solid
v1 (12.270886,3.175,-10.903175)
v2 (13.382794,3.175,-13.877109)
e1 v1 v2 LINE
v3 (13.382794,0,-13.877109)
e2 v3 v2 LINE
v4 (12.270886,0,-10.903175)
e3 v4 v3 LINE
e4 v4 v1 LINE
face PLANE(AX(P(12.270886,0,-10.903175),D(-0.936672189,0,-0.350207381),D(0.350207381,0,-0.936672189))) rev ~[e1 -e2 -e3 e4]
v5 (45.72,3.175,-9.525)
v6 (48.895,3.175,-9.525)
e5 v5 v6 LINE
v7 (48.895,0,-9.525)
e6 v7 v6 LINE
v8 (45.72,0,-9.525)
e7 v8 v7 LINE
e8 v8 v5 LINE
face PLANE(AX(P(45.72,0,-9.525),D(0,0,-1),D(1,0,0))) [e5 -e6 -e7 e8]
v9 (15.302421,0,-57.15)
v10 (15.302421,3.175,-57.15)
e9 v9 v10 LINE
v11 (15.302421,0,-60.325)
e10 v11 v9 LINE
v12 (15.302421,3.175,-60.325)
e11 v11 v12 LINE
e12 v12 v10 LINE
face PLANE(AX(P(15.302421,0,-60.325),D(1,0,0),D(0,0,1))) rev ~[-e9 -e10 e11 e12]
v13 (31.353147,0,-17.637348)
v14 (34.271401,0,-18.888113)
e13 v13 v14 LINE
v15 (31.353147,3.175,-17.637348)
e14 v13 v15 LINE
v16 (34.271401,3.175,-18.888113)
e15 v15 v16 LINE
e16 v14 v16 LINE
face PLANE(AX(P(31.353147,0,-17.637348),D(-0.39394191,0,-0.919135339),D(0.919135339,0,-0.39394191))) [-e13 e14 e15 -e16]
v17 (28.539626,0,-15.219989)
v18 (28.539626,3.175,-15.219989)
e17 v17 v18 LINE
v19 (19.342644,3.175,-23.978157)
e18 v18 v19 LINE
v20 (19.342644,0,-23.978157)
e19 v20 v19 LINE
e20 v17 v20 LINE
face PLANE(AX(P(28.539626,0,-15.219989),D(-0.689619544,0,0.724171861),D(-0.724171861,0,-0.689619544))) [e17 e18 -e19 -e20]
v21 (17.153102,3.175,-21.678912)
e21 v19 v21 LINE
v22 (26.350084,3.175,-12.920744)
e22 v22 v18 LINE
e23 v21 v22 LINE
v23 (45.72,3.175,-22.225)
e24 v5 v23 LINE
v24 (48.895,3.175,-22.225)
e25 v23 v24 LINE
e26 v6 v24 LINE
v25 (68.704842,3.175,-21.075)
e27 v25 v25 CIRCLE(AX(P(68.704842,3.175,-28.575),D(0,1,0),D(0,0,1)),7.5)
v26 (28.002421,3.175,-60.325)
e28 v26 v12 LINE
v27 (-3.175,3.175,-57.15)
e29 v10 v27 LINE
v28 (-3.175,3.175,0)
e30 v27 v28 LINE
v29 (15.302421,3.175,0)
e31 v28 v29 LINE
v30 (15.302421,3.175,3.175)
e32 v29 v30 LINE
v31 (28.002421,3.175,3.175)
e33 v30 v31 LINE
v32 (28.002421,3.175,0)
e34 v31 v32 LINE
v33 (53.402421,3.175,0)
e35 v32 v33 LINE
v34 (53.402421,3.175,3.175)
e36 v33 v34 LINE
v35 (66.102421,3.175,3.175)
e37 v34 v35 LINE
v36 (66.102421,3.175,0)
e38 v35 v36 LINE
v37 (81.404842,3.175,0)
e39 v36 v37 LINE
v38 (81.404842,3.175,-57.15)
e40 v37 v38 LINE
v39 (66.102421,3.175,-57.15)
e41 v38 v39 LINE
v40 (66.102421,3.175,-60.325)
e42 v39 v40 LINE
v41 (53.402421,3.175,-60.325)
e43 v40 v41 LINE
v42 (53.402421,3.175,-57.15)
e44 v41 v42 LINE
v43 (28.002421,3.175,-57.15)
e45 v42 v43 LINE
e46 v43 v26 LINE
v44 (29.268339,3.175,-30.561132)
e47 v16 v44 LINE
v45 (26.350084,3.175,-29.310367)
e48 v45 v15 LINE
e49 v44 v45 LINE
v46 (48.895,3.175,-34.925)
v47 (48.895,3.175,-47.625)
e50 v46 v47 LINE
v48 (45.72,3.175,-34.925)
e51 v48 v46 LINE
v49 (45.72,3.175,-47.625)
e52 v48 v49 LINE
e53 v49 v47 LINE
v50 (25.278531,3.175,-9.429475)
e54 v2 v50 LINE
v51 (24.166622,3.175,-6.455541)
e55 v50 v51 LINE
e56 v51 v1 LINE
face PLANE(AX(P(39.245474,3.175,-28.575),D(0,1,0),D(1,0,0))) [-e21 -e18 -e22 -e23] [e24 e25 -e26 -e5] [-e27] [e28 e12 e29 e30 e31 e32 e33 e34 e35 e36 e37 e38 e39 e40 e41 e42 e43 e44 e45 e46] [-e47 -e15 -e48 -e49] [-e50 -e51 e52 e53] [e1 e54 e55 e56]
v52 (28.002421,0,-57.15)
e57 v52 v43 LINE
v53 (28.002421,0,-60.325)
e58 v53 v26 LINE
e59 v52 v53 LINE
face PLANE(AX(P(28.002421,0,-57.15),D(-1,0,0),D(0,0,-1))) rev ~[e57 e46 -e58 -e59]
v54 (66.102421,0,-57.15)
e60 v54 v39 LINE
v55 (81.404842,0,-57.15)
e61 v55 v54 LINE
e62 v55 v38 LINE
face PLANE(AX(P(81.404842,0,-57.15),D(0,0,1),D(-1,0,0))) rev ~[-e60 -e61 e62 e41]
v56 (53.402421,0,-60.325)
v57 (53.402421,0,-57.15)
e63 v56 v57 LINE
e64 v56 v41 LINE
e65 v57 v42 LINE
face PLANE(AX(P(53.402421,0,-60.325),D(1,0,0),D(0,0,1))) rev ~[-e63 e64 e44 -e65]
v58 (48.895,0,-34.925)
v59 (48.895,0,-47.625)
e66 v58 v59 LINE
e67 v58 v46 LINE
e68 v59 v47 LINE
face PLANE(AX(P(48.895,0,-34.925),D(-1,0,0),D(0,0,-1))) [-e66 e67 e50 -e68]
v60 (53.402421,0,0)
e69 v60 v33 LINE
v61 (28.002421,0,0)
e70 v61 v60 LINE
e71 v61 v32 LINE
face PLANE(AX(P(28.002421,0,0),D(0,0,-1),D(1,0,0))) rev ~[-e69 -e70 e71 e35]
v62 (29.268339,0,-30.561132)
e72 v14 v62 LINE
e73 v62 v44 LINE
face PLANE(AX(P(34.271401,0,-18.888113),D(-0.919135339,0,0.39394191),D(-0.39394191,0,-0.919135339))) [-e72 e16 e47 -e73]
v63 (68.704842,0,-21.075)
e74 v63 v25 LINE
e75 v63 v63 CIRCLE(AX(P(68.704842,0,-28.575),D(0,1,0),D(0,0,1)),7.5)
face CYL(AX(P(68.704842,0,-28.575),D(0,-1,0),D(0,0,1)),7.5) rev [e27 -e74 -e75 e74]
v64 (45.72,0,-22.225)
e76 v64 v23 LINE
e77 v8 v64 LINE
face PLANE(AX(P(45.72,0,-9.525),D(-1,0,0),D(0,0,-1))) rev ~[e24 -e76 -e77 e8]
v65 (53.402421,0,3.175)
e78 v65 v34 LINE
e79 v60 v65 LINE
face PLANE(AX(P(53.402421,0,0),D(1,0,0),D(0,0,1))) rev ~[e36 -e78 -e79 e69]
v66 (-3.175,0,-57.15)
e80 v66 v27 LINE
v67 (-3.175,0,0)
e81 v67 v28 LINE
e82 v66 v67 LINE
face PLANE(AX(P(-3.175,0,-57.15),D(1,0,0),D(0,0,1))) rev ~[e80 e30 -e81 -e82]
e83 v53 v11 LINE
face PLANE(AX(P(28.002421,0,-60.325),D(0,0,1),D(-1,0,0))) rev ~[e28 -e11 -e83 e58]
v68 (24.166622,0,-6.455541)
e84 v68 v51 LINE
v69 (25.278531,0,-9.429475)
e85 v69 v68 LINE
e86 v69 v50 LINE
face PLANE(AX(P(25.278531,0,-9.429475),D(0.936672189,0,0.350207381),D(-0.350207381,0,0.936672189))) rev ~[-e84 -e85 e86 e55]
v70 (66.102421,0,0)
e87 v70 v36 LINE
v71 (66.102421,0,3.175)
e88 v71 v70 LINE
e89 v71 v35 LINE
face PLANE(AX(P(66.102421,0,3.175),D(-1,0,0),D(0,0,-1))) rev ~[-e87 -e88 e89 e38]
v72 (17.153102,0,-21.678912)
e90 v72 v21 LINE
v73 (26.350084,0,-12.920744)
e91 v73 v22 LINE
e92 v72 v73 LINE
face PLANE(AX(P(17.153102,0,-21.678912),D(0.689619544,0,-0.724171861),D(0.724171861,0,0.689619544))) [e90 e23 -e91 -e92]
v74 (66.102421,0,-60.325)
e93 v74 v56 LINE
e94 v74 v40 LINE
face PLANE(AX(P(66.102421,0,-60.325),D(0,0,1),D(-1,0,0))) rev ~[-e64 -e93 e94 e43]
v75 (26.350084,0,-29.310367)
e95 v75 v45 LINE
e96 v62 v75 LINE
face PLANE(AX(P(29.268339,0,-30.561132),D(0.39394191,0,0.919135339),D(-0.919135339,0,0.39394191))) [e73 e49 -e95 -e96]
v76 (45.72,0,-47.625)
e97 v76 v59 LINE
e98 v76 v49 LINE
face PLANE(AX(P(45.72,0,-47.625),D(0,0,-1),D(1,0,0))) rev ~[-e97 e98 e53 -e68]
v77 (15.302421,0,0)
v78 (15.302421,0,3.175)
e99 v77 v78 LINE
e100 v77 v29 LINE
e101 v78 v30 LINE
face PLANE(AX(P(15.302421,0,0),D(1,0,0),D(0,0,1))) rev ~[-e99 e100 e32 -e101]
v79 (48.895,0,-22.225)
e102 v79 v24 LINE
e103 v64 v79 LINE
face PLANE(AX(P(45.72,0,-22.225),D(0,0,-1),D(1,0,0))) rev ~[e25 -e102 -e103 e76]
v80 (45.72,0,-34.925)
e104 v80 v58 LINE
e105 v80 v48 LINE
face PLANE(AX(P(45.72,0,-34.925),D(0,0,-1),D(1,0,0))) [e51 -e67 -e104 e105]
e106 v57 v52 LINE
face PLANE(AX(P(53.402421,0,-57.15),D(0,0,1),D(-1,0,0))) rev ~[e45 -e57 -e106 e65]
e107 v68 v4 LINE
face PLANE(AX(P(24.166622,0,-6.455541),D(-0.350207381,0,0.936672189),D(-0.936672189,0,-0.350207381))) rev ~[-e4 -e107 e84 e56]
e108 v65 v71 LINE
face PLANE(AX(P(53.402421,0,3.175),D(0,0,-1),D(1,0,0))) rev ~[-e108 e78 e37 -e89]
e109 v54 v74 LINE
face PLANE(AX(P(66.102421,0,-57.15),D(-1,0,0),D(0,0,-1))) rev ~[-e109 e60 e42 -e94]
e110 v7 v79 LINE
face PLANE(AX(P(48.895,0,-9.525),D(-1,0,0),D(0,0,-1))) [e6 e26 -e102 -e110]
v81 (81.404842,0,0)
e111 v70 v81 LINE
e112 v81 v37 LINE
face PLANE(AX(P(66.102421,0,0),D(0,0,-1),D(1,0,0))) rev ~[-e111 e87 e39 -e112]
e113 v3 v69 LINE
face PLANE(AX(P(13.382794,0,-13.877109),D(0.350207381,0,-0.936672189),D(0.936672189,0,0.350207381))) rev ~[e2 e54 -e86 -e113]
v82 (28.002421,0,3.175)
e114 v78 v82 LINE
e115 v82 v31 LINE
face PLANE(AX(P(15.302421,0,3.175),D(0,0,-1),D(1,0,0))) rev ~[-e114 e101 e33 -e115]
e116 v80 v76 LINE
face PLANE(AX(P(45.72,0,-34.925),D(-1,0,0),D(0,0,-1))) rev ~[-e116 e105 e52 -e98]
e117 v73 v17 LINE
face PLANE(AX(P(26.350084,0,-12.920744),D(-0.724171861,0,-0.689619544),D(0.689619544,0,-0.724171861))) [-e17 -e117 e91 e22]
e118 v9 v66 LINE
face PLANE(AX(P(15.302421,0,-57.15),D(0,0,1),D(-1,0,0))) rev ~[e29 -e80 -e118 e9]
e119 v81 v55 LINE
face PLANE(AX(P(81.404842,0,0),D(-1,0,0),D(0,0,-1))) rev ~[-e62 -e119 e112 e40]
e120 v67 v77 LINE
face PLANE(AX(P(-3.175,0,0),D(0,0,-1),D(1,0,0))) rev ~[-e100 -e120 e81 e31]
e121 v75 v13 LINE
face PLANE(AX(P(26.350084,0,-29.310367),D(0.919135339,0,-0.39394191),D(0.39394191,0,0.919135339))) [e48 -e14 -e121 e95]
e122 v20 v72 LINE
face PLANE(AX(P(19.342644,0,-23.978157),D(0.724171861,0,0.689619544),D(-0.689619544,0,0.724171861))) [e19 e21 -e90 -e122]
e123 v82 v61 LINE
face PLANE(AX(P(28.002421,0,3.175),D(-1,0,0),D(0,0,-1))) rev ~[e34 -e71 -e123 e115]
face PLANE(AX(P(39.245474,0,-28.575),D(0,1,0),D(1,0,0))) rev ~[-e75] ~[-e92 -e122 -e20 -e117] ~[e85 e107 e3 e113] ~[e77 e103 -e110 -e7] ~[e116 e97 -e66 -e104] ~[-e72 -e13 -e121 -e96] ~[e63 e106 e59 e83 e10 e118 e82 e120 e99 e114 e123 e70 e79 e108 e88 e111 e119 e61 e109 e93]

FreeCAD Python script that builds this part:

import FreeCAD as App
import Part
import Sketcher
Q = App.Units.Quantity

doc = App.newDocument("Part")
body = doc.addObject("PartDesign::Body", "Body")

# Sketch on XZ plane
sketch1 = doc.addObject("Sketcher::SketchObject", "Sketch")
body.addObject(sketch1)
sketch1.AttachmentSupport = (doc.XZ_Plane, [""])
sketch1.MapMode = "FlatFace"
sketch1.addGeometry(Part.LineSegment(App.Vector(15.3, 0, 0), App.Vector(15.3, 3.2, 0)), False)
sketch1.addGeometry(Part.LineSegment(App.Vector(15.3, 3.2, 0), App.Vector(28, 3.2, 0)), False)
sketch1.addGeometry(Part.LineSegment(App.Vector(28, 3.2, 0), App.Vector(28, 0, 0)), False)
sketch1.addGeometry(Part.LineSegment(App.Vector(28, 0, 0), App.Vector(53.4, 0, 0)), False)
sketch1.addGeometry(Part.LineSegment(App.Vector(53.4, 0, 0), App.Vector(53.4, 3.2, 0)), False)
sketch1.addGeometry(Part.LineSegment(App.Vector(53.4, 3.2, 0), App.Vector(66.1, 3.2, 0)), False)
sketch1.addGeometry(Part.LineSegment(App.Vector(66.1, 3.2, 0), App.Vector(66.1, 0, 0)), False)
sketch1.addGeometry(Part.LineSegment(App.Vector(66.1, 0, 0), App.Vector(81.4, 0, 0)), False)
sketch1.addGeometry(Part.LineSegment(App.Vector(81.4, 0, 0), App.Vector(81.4, -57.1, 0)), False)
sketch1.addGeometry(Part.LineSegment(App.Vector(81.4, -57.1, 0), App.Vector(66.1, -57.1, 0)), False)
sketch1.addGeometry(Part.LineSegment(App.Vector(66.1, -57.1, 0), App.Vector(66.1, -60.3, 0)), False)
sketch1.addGeometry(Part.LineSegment(App.Vector(66.1, -60.3, 0), App.Vector(53.4, -60.3, 0)), False)
sketch1.addGeometry(Part.LineSegment(App.Vector(53.4, -60.3, 0), App.Vector(53.4, -57.1, 0)), False)
sketch1.addGeometry(Part.LineSegment(App.Vector(53.4, -57.1, 0), App.Vector(28, -57.1, 0)), False)
sketch1.addGeometry(Part.LineSegment(App.Vector(28, -57.1, 0), App.Vector(28, -60.3, 0)), False)
sketch1.addGeometry(Part.LineSegment(App.Vector(28, -60.3, 0), App.Vector(15.3, -60.3, 0)), False)
sketch1.addGeometry(Part.LineSegment(App.Vector(15.3, -60.3, 0), App.Vector(15.3, -57.1, 0)), False)
sketch1.addGeometry(Part.LineSegment(App.Vector(15.3, -57.1, 0), App.Vector(-3.2, -57.1, 0)), False)
sketch1.addGeometry(Part.LineSegment(App.Vector(-3.2, -57.1, 0), App.Vector(-3.2, 0, 0)), False)
sketch1.addGeometry(Part.LineSegment(App.Vector(-3.2, 0, 0), App.Vector(15.3, 0, 0)), False)
sketch1.addGeometry(Part.LineSegment(App.Vector(24.2, -6.5, 0), App.Vector(12.3, -10.9, 0)), False)
sketch1.addGeometry(Part.LineSegment(App.Vector(12.3, -10.9, 0), App.Vector(13.4, -13.9, 0)), False)
sketch1.addGeometry(Part.LineSegment(App.Vector(13.4, -13.9, 0), App.Vector(25.3, -9.4, 0)), False)
sketch1.addGeometry(Part.LineSegment(App.Vector(25.3, -9.4, 0), App.Vector(24.2, -6.5, 0)), False)
sketch1.addGeometry(Part.LineSegment(App.Vector(26.4, -12.9, 0), App.Vector(17.2, -21.7, 0)), False)
sketch1.addGeometry(Part.LineSegment(App.Vector(17.2, -21.7, 0), App.Vector(19.3, -24, 0)), False)
sketch1.addGeometry(Part.LineSegment(App.Vector(19.3, -24, 0), App.Vector(28.5, -15.2, 0)), False)
sketch1.addGeometry(Part.LineSegment(App.Vector(28.5, -15.2, 0), App.Vector(26.4, -12.9, 0)), False)
sketch1.addGeometry(Part.LineSegment(App.Vector(31.4, -17.6, 0), App.Vector(26.4, -29.3, 0)), False)
sketch1.addGeometry(Part.LineSegment(App.Vector(26.4, -29.3, 0), App.Vector(29.3, -30.6, 0)), False)
sketch1.addGeometry(Part.LineSegment(App.Vector(29.3, -30.6, 0), App.Vector(34.3, -18.9, 0)), False)
sketch1.addGeometry(Part.LineSegment(App.Vector(34.3, -18.9, 0), App.Vector(31.4, -17.6, 0)), False)
sketch1.addGeometry(Part.LineSegment(App.Vector(48.9, -9.5, 0), App.Vector(45.7, -9.5, 0)), False)
sketch1.addGeometry(Part.LineSegment(App.Vector(45.7, -9.5, 0), App.Vector(45.7, -22.2, 0)), False)
sketch1.addGeometry(Part.LineSegment(App.Vector(45.7, -22.2, 0), App.Vector(48.9, -22.2, 0)), False)
sketch1.addGeometry(Part.LineSegment(App.Vector(48.9, -22.2, 0), App.Vector(48.9, -9.5, 0)), False)
sketch1.addGeometry(Part.Circle(App.Vector(68.7, -28.6, 0), App.Vector(0, 0, 1), 7.5), False)
sketch1.addGeometry(Part.LineSegment(App.Vector(48.9, -34.9, 0), App.Vector(45.7, -34.9, 0)), False)
sketch1.addGeometry(Part.LineSegment(App.Vector(45.7, -34.9, 0), App.Vector(45.7, -47.6, 0)), False)
sketch1.addGeometry(Part.LineSegment(App.Vector(45.7, -47.6, 0), App.Vector(48.9, -47.6, 0)), False)
sketch1.addGeometry(Part.LineSegment(App.Vector(48.9, -47.6, 0), App.Vector(48.9, -34.9, 0)), False)
sketch1.addConstraint(Sketcher.Constraint("Coincident", 0, 2, 1, 1))
sketch1.addConstraint(Sketcher.Constraint("Coincident", 1, 2, 2, 1))
sketch1.addConstraint(Sketcher.Constraint("Coincident", 2, 2, 3, 1))
sketch1.addConstraint(Sketcher.Constraint("Coincident", 3, 2, 4, 1))
sketch1.addConstraint(Sketcher.Constraint("Coincident", 4, 2, 5, 1))
sketch1.addConstraint(Sketcher.Constraint("Coincident", 5, 2, 6, 1))
sketch1.addConstraint(Sketcher.Constraint("Coincident", 6, 2, 7, 1))
sketch1.addConstraint(Sketcher.Constraint("Coincident", 7, 2, 8, 1))
sketch1.addConstraint(Sketcher.Constraint("Coincident", 8, 2, 9, 1))
sketch1.addConstraint(Sketcher.Constraint("Coincident", 9, 2, 10, 1))
sketch1.addConstraint(Sketcher.Constraint("Coincident", 10, 2, 11, 1))
sketch1.addConstraint(Sketcher.Constraint("Coincident", 11, 2, 12, 1))
sketch1.addConstraint(Sketcher.Constraint("Coincident", 12, 2, 13, 1))
sketch1.addConstraint(Sketcher.Constraint("Coincident", 13, 2, 14, 1))
sketch1.addConstraint(Sketcher.Constraint("Coincident", 14, 2, 15, 1))
sketch1.addConstraint(Sketcher.Constraint("Coincident", 15, 2, 16, 1))
sketch1.addConstraint(Sketcher.Constraint("Coincident", 16, 2, 17, 1))
sketch1.addConstraint(Sketcher.Constraint("Coincident", 17, 2, 18, 1))
sketch1.addConstraint(Sketcher.Constraint("Coincident", 18, 2, 19, 1))
sketch1.addConstraint(Sketcher.Constraint("Coincident", 19, 2, 0, 1))
sketch1.addConstraint(Sketcher.Constraint("Coincident", 20, 2, 21, 1))
sketch1.addConstraint(Sketcher.Constraint("Coincident", 21, 2, 22, 1))
sketch1.addConstraint(Sketcher.Constraint("Coincident", 22, 2, 23, 1))
sketch1.addConstraint(Sketcher.Constraint("Coincident", 23, 2, 20, 1))
sketch1.addConstraint(Sketcher.Constraint("Coincident", 24, 2, 25, 1))
sketch1.addConstraint(Sketcher.Constraint("Coincident", 25, 2, 26, 1))
sketch1.addConstraint(Sketcher.Constraint("Coincident", 26, 2, 27, 1))
sketch1.addConstraint(Sketcher.Constraint("Coincident", 27, 2, 24, 1))
sketch1.addConstraint(Sketcher.Constraint("Coincident", 28, 2, 29, 1))
sketch1.addConstraint(Sketcher.Constraint("Coincident", 29, 2, 30, 1))
sketch1.addConstraint(Sketcher.Constraint("Coincident", 30, 2, 31, 1))
sketch1.addConstraint(Sketcher.Constraint("Coincident", 31, 2, 28, 1))
sketch1.addConstraint(Sketcher.Constraint("Coincident", 32, 2, 33, 1))
sketch1.addConstraint(Sketcher.Constraint("Coincident", 33, 2, 34, 1))
sketch1.addConstraint(Sketcher.Constraint("Coincident", 34, 2, 35, 1))
sketch1.addConstraint(Sketcher.Constraint("Coincident", 35, 2, 32, 1))
sketch1.addConstraint(Sketcher.Constraint("Coincident", 37, 2, 38, 1))
sketch1.addConstraint(Sketcher.Constraint("Coincident", 38, 2, 39, 1))
sketch1.addConstraint(Sketcher.Constraint("Coincident", 39, 2, 40, 1))
sketch1.addConstraint(Sketcher.Constraint("Coincident", 40, 2, 37, 1))
sketch1.addConstraint(Sketcher.Constraint("Vertical", 0))
sketch1.addConstraint(Sketcher.Constraint("Horizontal", 1))
sketch1.addConstraint(Sketcher.Constraint("Vertical", 2))
sketch1.addConstraint(Sketcher.Constraint("Horizontal", 3))
sketch1.addConstraint(Sketcher.Constraint("Vertical", 4))
sketch1.addConstraint(Sketcher.Constraint("Horizontal", 5))
sketch1.addConstraint(Sketcher.Constraint("Vertical", 6))
sketch1.addConstraint(Sketcher.Constraint("Horizontal", 7))
sketch1.addConstraint(Sketcher.Constraint("Vertical", 8))
sketch1.addConstraint(Sketcher.Constraint("Horizontal", 9))
sketch1.addConstraint(Sketcher.Constraint("Vertical", 10))
sketch1.addConstraint(Sketcher.Constraint("Horizontal", 11))
sketch1.addConstraint(Sketcher.Constraint("Vertical", 12))
sketch1.addConstraint(Sketcher.Constraint("Horizontal", 13))
sketch1.addConstraint(Sketcher.Constraint("Vertical", 14))
sketch1.addConstraint(Sketcher.Constraint("Horizontal", 15))
sketch1.addConstraint(Sketcher.Constraint("Vertical", 16))
sketch1.addConstraint(Sketcher.Constraint("Horizontal", 17))
sketch1.addConstraint(Sketcher.Constraint("Vertical", 18))
sketch1.addConstraint(Sketcher.Constraint("Horizontal", 19))
sketch1.addConstraint(Sketcher.Constraint("Horizontal", 32))
sketch1.addConstraint(Sketcher.Constraint("Vertical", 33))
sketch1.addConstraint(Sketcher.Constraint("Horizontal", 34))
sketch1.addConstraint(Sketcher.Constraint("Vertical", 35))
sketch1.addConstraint(Sketcher.Constraint("Horizontal", 37))
sketch1.addConstraint(Sketcher.Constraint("Vertical", 38))
sketch1.addConstraint(Sketcher.Constraint("Horizontal", 39))
sketch1.addConstraint(Sketcher.Constraint("Vertical", 40))
sketch1.addConstraint(Sketcher.Constraint("PointOnObject", 2, 2, -1))
sketch1.addConstraint(Sketcher.Constraint("PointOnObject", 6, 2, -1))
sketch1.addConstraint(Sketcher.Constraint("PointOnObject", 18, 2, -1))
sketch1.addConstraint(Sketcher.Constraint("Perpendicular", 20, 21))
sketch1.addConstraint(Sketcher.Constraint("Perpendicular", 21, 22))
sketch1.addConstraint(Sketcher.Constraint("Perpendicular", 22, 23))
sketch1.addConstraint(Sketcher.Constraint("Perpendicular", 24, 25))
sketch1.addConstraint(Sketcher.Constraint("Perpendicular", 25, 26))
sketch1.addConstraint(Sketcher.Constraint("Perpendicular", 26, 27))
sketch1.addConstraint(Sketcher.Constraint("Perpendicular", 28, 29))
sketch1.addConstraint(Sketcher.Constraint("Perpendicular", 29, 30))
sketch1.addConstraint(Sketcher.Constraint("Perpendicular", 30, 31))
sketch1.addConstraint(Sketcher.Constraint("Horizontal", 1, 2, 4, 2))
sketch1.addConstraint(Sketcher.Constraint("Horizontal", 9, 2, 12, 2))
sketch1.addConstraint(Sketcher.Constraint("Horizontal", 11, 2, 14, 2))
sketch1.addConstraint(Sketcher.Constraint("Horizontal", 13, 2, 16, 2))
sketch1.addConstraint(Sketcher.Constraint("Vertical", 6, 2, 9, 2))
sketch1.addConstraint(Sketcher.Constraint("Vertical", 4, 2, 11, 2))
sketch1.addConstraint(Sketcher.Constraint("Vertical", 2, 2, 13, 2))
sketch1.addConstraint(Sketcher.Constraint("Vertical", 0, 2, 15, 2))
sketch1.addConstraint(Sketcher.Constraint("Vertical", 27, 2, 28, 2))
sketch1.addConstraint(Sketcher.Constraint("Vertical", 33, 2, 37, 2))
sketch1.addConstraint(Sketcher.Constraint("Vertical", 35, 2, 39, 2))
sketch1.addConstraint(Sketcher.Constraint("Equal", 1, 5))
sketch1.addConstraint(Sketcher.Constraint("Equal", 39, 0))
sketch1.addConstraint(Sketcher.Constraint("Equal", 6, 10))
sketch1.addConstraint(Sketcher.Constraint("Equal", 15, 33))
sketch1.addConstraint(Sketcher.Constraint("Equal", 35, 38))
sketch1.addConstraint(Sketcher.Constraint("Equal", 22, 24))
sketch1.addConstraint(Sketcher.Constraint("Equal", 23, 25))
sketch1.addConstraint(Sketcher.Constraint("Equal", 26, 28))
sketch1.addConstraint(Sketcher.Constraint("Equal", 27, 29))
sketch1.addConstraint(Sketcher.Constraint("DistanceX", 3, 1, 3, 2, Q("1 in")))
sketch1.addConstraint(Sketcher.Constraint("DistanceX", 1, 1, 1, 2, Q("0.5 in")))
sketch1.addConstraint(Sketcher.Constraint("Distance", 20, Q("0.5 in")))
sketch1.addConstraint(Sketcher.Constraint("DistanceY", 8, 2, 8, 1, Q("2.25 in")))
sketch1.addConstraint(Sketcher.Constraint("DistanceX", -1, 1, 32, 2, Q("1.8 in")))
sketch1.addConstraint(Sketcher.Constraint("Angle", 20, Q("-159.5 deg")))
sketch1.addConstraint(Sketcher.Constraint("Angle", 24, Q("-136.4 deg")))
sketch1.addConstraint(Sketcher.Constraint("Angle", 28, Q("-113.2 deg")))
sketch1.addConstraint(Sketcher.Constraint("DistanceX", 36, 3, 7, 2, Q("0.5 in")))
sketch1.addConstraint(Sketcher.Constraint("DistanceY", 32, 2, 4, 2, Q("0.5 in")))
sketch1.addConstraint(Sketcher.Constraint("DistanceY", 37, 2, 33, 2, Q("0.5 in")))
sketch1.addConstraint(Sketcher.Constraint("DistanceY", 11, 2, 38, 2, Q("0.5 in")))
sketch1.addConstraint(Sketcher.Constraint("Diameter", 36, Q("15 mm")))
sketch1.addConstraint(Sketcher.Constraint("DistanceY", 36, 3, 0, 2, Q("1.25 in")))
sketch1.addConstraint(Sketcher.Constraint("Distance", 21, Q("0.125 in")))
sketch1.addConstraint(Sketcher.Constraint("DistanceX", 17, 2, -1, 1, Q("0.125 in")))
sketch1.addConstraint(Sketcher.Constraint("DistanceX", 7, 1, 7, 2, Q("15.302421 mm")))
sketch1.addConstraint(Sketcher.Constraint("DistanceX", 17, 2, 17, 1, Q("18.477421 mm")))
sketch1.addConstraint(Sketcher.Constraint("DistanceX", -1, 1, 24, 2, Q("17.153102 mm")))
sketch1.addConstraint(Sketcher.Constraint("DistanceX", 23, 2, 2, 2, Q("3.835798 mm")))
sketch1.addConstraint(Sketcher.Constraint("DistanceY", 21, 2, -1, 1, Q("13.877109 mm")))
sketch1.addConstraint(Sketcher.Constraint("DistanceY", 24, 2, -1, 1, Q("21.678912 mm")))
sketch1.addConstraint(Sketcher.Constraint("DistanceY", 28, 2, 25, 2, Q("5.332209 mm")))
pad1 = doc.addObject("PartDesign::Pad", "Pad")
body.addObject(pad1)
pad1.Profile = sketch1
pad1.Length = Q("0.125 in")
pad1.Reversed = True

doc.recompute()
